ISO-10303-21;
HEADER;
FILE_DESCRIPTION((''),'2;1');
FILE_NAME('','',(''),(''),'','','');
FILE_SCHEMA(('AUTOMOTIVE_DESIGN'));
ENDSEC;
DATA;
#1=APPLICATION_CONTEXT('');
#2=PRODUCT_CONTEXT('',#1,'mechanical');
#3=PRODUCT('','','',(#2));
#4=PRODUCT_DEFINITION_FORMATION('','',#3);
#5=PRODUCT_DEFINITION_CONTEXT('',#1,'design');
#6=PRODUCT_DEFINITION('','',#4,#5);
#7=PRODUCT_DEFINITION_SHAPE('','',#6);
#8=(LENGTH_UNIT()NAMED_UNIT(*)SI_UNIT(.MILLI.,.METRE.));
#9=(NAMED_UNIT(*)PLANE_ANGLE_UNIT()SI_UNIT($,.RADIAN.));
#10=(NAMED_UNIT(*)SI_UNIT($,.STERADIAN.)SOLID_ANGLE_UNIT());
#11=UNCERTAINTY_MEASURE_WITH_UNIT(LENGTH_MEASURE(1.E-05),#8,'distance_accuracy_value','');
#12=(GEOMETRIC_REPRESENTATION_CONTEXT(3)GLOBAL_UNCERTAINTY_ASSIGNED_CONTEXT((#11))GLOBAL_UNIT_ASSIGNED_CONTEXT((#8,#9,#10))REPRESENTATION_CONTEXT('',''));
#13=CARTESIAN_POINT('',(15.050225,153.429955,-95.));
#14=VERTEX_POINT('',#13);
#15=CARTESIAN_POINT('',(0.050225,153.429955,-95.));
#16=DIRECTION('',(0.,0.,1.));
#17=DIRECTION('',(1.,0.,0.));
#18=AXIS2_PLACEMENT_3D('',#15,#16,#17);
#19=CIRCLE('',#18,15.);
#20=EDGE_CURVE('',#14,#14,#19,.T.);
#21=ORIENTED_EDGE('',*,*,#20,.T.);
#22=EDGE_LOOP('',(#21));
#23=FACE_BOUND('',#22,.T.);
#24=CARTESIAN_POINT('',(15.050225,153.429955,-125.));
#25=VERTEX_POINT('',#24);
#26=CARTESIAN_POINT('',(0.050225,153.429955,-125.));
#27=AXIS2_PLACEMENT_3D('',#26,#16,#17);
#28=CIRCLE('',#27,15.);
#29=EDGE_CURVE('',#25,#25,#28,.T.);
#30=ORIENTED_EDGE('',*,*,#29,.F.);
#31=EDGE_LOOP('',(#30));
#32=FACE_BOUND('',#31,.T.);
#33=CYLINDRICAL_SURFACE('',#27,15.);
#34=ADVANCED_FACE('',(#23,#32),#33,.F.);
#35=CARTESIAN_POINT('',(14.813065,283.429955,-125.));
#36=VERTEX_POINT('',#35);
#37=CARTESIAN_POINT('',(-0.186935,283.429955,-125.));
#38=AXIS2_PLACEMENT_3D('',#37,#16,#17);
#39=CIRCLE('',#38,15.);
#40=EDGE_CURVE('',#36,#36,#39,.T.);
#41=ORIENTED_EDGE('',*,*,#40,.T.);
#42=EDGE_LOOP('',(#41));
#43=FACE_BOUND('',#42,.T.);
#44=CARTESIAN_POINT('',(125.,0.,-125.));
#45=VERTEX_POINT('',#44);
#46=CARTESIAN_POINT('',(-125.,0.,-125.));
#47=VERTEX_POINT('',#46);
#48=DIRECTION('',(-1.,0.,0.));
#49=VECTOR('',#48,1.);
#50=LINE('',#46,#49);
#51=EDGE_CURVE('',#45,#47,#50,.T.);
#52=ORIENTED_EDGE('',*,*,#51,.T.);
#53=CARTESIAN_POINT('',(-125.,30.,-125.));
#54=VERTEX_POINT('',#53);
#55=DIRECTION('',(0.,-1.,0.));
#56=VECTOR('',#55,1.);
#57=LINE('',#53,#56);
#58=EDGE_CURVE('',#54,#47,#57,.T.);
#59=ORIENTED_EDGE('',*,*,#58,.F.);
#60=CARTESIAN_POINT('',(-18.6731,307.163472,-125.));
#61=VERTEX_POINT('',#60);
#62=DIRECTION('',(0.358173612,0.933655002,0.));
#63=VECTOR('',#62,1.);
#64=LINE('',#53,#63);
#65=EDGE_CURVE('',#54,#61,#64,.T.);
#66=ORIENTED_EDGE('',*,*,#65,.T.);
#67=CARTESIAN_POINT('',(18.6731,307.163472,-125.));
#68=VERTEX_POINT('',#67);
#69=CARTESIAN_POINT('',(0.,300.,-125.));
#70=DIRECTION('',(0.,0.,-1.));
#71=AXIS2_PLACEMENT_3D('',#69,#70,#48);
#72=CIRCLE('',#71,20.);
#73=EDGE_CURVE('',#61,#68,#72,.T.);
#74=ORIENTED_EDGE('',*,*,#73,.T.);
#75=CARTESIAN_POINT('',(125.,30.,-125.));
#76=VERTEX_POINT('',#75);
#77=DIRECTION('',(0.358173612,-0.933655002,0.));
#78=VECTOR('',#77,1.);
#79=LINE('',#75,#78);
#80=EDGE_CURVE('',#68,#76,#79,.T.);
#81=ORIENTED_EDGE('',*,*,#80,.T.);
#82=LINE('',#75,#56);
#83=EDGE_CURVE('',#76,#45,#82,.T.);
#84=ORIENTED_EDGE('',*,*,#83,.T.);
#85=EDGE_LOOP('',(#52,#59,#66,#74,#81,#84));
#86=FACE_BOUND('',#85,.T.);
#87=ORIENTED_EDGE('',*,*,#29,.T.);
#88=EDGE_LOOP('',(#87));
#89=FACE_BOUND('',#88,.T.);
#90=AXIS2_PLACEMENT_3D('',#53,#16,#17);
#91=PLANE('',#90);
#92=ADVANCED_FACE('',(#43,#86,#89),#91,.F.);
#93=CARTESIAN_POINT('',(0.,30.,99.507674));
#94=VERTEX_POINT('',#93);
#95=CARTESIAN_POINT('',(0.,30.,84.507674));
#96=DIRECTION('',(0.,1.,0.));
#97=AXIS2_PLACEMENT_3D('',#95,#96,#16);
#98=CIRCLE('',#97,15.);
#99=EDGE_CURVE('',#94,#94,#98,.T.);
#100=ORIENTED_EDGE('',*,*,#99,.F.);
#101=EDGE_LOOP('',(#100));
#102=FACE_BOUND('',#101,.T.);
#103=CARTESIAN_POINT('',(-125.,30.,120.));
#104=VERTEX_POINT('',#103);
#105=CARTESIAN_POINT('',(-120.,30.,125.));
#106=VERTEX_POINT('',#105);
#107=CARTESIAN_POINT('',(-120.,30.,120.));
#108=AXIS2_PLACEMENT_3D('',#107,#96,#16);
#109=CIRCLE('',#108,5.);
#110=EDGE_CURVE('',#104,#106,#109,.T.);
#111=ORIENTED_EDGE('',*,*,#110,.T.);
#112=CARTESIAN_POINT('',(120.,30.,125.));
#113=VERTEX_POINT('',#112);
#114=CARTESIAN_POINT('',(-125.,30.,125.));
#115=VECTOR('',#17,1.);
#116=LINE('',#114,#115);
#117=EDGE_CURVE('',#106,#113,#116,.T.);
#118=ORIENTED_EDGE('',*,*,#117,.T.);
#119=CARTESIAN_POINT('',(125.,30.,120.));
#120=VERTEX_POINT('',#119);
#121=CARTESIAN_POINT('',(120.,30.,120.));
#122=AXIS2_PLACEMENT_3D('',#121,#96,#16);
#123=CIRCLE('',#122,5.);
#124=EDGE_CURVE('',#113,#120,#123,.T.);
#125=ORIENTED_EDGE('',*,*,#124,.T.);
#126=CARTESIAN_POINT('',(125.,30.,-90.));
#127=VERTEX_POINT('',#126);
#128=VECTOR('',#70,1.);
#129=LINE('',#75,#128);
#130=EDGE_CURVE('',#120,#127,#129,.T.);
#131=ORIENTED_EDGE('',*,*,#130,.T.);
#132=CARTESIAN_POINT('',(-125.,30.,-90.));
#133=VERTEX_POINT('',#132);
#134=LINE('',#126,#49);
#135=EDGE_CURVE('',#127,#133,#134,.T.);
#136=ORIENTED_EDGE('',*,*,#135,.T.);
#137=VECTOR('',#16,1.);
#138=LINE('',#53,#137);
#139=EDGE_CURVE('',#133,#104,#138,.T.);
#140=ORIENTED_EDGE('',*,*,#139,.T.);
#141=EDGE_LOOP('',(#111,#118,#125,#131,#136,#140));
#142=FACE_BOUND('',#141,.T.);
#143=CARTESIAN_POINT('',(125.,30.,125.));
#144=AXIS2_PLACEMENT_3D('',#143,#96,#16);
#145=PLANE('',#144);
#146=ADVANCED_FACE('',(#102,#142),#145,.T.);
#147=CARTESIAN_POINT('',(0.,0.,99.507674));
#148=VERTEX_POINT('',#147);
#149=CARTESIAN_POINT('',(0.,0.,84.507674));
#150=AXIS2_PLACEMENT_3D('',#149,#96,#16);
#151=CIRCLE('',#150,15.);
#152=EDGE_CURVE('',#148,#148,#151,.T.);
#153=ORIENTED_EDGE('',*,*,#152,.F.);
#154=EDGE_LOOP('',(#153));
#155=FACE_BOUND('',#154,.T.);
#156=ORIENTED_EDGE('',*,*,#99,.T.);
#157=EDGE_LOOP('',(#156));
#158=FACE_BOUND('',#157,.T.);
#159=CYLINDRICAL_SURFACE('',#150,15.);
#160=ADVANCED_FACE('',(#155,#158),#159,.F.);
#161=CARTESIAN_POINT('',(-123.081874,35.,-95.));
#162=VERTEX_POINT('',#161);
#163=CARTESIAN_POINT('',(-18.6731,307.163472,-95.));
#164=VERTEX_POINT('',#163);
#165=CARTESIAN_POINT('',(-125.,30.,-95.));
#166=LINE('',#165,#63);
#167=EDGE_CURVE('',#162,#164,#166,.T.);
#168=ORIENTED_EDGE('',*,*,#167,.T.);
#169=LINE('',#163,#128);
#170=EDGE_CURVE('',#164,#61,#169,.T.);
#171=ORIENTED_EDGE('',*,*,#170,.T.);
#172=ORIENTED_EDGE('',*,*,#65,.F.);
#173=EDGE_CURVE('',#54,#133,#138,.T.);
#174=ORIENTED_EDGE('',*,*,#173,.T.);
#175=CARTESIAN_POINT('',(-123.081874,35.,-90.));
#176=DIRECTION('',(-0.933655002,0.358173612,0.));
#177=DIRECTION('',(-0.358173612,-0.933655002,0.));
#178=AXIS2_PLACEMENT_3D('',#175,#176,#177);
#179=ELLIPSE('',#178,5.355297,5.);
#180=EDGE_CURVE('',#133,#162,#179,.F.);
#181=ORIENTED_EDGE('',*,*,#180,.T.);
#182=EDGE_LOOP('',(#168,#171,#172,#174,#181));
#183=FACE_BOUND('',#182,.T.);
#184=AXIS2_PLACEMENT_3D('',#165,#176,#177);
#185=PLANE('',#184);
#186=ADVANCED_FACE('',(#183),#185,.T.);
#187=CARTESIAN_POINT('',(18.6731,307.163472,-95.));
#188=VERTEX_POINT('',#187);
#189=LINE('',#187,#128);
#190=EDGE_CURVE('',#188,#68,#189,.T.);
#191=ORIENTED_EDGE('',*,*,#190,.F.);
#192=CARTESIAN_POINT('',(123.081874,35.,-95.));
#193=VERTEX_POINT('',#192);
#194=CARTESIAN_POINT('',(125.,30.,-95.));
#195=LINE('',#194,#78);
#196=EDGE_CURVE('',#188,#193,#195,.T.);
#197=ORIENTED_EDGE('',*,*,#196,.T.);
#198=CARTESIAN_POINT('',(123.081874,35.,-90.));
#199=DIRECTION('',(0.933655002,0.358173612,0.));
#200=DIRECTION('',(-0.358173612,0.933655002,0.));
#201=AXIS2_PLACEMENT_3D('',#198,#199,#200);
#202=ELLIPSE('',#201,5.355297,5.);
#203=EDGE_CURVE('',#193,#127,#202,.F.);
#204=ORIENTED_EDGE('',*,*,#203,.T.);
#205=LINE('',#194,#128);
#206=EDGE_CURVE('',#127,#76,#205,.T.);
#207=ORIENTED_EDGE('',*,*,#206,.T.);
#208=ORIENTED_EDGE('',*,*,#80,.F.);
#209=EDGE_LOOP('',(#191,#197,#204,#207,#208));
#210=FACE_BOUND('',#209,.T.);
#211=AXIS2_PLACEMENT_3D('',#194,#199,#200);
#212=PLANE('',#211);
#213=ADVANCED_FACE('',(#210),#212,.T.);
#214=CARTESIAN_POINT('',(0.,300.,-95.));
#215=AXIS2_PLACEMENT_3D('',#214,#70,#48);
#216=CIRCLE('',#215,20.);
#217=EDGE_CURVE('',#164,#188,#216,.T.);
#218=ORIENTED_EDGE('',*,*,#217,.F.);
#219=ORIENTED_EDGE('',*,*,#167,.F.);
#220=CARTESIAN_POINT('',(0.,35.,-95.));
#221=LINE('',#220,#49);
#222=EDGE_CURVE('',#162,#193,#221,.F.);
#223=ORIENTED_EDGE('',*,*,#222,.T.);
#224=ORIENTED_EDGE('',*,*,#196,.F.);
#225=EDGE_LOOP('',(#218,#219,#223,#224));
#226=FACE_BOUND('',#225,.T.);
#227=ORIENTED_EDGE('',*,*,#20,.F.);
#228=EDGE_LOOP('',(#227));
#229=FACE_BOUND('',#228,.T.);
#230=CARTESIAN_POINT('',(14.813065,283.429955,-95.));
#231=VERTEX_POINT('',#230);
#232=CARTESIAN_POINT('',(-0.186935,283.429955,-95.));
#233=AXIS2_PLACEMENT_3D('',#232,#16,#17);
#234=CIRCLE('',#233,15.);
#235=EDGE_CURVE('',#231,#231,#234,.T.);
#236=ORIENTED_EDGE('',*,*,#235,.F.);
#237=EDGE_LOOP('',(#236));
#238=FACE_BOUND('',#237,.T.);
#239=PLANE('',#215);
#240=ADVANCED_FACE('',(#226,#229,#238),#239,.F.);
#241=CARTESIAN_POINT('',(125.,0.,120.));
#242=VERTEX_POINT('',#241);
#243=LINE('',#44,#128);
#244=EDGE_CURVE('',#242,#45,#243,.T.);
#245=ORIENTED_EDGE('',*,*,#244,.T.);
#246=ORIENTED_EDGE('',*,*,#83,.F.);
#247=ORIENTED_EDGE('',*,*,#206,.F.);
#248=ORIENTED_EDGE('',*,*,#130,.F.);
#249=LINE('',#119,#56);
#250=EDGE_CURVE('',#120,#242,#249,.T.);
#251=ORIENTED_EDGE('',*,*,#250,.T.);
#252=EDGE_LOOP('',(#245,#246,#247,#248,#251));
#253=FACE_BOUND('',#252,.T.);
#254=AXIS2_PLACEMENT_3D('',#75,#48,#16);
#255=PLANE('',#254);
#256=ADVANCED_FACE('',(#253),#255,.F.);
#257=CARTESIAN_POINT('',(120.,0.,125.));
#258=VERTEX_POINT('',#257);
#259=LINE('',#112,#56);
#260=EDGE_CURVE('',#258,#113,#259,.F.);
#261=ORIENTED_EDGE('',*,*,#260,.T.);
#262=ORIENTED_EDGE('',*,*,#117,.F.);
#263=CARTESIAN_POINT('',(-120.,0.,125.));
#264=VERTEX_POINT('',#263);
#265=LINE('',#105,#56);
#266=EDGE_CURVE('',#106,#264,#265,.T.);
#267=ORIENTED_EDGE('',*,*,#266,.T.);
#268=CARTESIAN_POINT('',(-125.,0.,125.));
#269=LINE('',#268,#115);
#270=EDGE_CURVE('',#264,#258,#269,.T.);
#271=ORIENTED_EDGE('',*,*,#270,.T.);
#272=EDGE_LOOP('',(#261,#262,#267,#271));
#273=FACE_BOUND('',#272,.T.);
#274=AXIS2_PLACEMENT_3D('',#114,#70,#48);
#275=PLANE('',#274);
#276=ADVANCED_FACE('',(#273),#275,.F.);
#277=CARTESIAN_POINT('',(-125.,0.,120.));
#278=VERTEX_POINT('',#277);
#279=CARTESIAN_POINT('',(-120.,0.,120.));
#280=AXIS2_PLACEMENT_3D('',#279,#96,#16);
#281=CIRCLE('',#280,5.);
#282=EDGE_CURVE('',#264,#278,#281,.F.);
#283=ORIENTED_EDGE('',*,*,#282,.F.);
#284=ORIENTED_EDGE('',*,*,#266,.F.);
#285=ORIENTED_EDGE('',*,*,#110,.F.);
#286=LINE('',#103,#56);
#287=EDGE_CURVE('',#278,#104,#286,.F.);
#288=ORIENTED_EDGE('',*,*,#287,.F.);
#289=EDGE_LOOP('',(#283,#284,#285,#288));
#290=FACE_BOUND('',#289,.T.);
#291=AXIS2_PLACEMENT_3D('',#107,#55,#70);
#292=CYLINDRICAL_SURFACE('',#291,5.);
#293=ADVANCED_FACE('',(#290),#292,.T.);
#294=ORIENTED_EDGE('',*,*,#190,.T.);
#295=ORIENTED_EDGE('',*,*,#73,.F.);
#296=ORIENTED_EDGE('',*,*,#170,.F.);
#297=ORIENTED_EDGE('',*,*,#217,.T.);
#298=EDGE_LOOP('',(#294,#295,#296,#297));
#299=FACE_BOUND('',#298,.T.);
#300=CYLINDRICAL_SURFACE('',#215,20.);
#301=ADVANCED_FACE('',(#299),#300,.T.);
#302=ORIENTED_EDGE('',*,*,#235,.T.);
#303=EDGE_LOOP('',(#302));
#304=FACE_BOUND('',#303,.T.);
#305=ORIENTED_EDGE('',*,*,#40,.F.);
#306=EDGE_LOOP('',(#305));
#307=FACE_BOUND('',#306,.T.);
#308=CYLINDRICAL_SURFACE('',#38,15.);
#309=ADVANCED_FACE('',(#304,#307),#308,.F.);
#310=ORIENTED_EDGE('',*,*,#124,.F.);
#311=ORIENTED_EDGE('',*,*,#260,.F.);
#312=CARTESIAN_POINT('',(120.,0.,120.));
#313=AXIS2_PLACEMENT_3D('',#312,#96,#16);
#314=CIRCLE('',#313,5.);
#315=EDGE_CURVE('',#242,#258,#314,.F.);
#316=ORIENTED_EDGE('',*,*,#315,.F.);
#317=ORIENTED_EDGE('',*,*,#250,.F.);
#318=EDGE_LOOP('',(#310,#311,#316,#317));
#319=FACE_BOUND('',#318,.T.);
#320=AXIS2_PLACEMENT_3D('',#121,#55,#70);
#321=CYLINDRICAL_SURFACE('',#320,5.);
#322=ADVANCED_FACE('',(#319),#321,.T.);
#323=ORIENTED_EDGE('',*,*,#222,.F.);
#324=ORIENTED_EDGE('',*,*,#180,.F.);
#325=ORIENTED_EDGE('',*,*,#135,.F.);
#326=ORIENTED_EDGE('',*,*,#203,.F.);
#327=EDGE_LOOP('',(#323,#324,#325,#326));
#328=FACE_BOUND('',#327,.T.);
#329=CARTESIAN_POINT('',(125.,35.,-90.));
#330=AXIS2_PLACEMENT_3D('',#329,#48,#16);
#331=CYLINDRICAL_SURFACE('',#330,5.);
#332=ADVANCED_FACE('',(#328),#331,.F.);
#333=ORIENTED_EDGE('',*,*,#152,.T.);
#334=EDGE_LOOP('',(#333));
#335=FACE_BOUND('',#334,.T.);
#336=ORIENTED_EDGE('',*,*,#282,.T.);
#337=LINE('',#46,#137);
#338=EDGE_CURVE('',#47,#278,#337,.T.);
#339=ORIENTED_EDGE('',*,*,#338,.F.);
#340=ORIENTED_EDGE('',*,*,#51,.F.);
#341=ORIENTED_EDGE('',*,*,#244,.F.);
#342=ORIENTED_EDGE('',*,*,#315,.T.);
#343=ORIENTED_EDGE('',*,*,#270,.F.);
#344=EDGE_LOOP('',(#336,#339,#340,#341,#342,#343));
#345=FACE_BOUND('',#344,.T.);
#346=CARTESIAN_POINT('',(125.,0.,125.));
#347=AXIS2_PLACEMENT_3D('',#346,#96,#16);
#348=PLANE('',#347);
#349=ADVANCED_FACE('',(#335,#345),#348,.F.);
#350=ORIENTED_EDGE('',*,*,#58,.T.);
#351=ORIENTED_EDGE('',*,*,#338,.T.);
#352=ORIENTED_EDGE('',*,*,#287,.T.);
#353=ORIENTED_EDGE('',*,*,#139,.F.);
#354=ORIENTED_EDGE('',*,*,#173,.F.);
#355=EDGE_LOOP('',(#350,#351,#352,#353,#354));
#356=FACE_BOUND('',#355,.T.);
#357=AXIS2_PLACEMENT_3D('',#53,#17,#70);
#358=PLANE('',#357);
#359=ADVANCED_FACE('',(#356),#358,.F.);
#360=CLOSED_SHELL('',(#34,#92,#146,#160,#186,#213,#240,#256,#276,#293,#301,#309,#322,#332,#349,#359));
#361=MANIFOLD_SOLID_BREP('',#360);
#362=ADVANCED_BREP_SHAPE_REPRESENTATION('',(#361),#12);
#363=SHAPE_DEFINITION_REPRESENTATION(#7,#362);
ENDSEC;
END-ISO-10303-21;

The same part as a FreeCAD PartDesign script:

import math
import FreeCAD as App
import Part
import Sketcher

V = App.Vector


def edges_at(feature, points):
    """Names of the edges that pass closest to the given points."""
    edges = feature.Shape.Edges
    near = lambda p: min(range(len(edges)), key=lambda i: edges[i].distToShape(Part.Vertex(*p))[0])
    return sorted({f"Edge{near(p) + 1}" for p in points})


def add_polygon(sketch, points):
    """Adds a closed chain of lines whose ends are joined by coincident constraints."""
    first, n = sketch.GeometryCount, len(points)
    for a, b in zip(points, points[1:] + points[:1]):
        sketch.addGeometry(Part.LineSegment(App.Vector(*a, 0), App.Vector(*b, 0)), False)
    for i in range(n):
        sketch.addConstraint(Sketcher.Constraint("Coincident", first + i, 2, first + (i + 1) % n, 1))

doc = App.newDocument("Part")
params = doc.addObject("Spreadsheet::Sheet", "Params")
for row, (alias, value) in enumerate([
    ("sketch1_width", "250 mm"),
    ("pad1_length", "30 mm"),
    ("sketch2_radius", "20 mm"),
    ("sketch2_width", "250 mm"),
    ("pad2_length", "30 mm"),
    ("fillet_radius", "5 mm"),
    ("fillet2_radius", "5 mm"),
    ("sketch3_diameter", "30 mm"),
    ("pocket1_length", "30 mm"),
    ("pad3_length", "30 mm"),
    ("sketch5_diameter", "30 mm"),
    ("pocket2_length", "30 mm"),
], start=1):
    params.set(f"A{row}", alias)
    params.set(f"B{row}", "=" + value)
    params.setAlias(f"B{row}", alias)

body = doc.addObject("PartDesign::Body", "Body")

# Sketch on XZ plane
sketch1 = doc.addObject("Sketcher::SketchObject", "Sketch")
body.addObject(sketch1)
sketch1.AttachmentSupport = (doc.XZ_Plane, [""])
sketch1.MapMode = "FlatFace"
add_polygon(sketch1, [(-125, -125), (-125, 125), (125, 125), (125, -125)])  # lines 0-3
sketch1.addConstraint([
    Sketcher.Constraint("Vertical", 0),
    Sketcher.Constraint("Horizontal", 1),
    Sketcher.Constraint("Vertical", 2),
    Sketcher.Constraint("Horizontal", 3),
    Sketcher.Constraint("Symmetric", 0, 2, 2, 2, -1, 1),
    Sketcher.Constraint("Equal", 3, 0),
    Sketcher.Constraint("DistanceX", 1, 1, 1, 2, 250.0),
])
sketch1.setExpression("Constraints[10]", "Params.sketch1_width")
pad1 = doc.addObject("PartDesign::Pad", "Pad")
body.addObject(pad1)
pad1.Profile = sketch1
pad1.setExpression("Length", "Params.pad1_length")
pad1.Reversed = True

# Sketch on XY plane
sketch2 = doc.addObject("Sketcher::SketchObject", "Sketch001")
body.addObject(sketch2)
sketch2.AttachmentSupport = (doc.XY_Plane, [""])
sketch2.MapMode = "FlatFace"
sketch2.AttachmentOffset = App.Placement(V(0, 0, -125), App.Rotation())
sketch2.addGeometry([
    Part.LineSegment(V(19, 307, 0), V(125, 30, 0)),
    Part.LineSegment(V(125, 30, 0), V(-125, 30, 0)),
    Part.LineSegment(V(-125, 30, 0), V(-19, 307, 0)),
    Part.ArcOfCircle(Part.Circle(V(0, 300, 0), V(0, 0, 1), 20), math.radians(21), math.radians(159)),
], False)
sketch2.addConstraint([
    Sketcher.Constraint("Coincident", 0, 2, 1, 1),
    Sketcher.Constraint("Coincident", 1, 2, 2, 1),
    Sketcher.Constraint("Tangent", 2, 2, 3, 2),
    Sketcher.Constraint("Tangent", 3, 1, 0, 1),
    Sketcher.Constraint("Horizontal", 1),
    Sketcher.Constraint("Symmetric", 2, 2, 3, 1, -2),
    Sketcher.Constraint("Radius", 3, 20.0),
    Sketcher.Constraint("DistanceX", 1, 2, 1, 1, 250.0),
    Sketcher.Constraint("DistanceY", -1, 1, 3, 3, 300.0),
    Sketcher.Constraint("DistanceY", -1, 1, 0, 2, 30.0),
])
sketch2.setExpression("Constraints[6]", "Params.sketch2_radius")
sketch2.setExpression("Constraints[7]", "Params.sketch2_width")
pad2 = doc.addObject("PartDesign::Pad", "Pad001")
body.addObject(pad2)
pad2.Profile = sketch2
pad2.setExpression("Length", "Params.pad2_length")
doc.recompute()

fillet = doc.addObject("PartDesign::Fillet", "Fillet")
body.addObject(fillet)
fillet.Base = (pad2, edges_at(pad2, [(0, 30, -95)]))
fillet.setExpression("Radius", "Params.fillet_radius")
doc.recompute()

fillet2 = doc.addObject("PartDesign::Fillet", "Fillet001")
body.addObject(fillet2)
fillet2.Base = (fillet, edges_at(fillet, [(-125, 15, 125), (125, 15, 125)]))
fillet2.setExpression("Radius", "Params.fillet2_radius")

# Sketch on XY plane
sketch3 = doc.addObject("Sketcher::SketchObject", "Sketch002")
body.addObject(sketch3)
sketch3.AttachmentSupport = (doc.XY_Plane, [""])
sketch3.MapMode = "FlatFace"
sketch3.AttachmentOffset = App.Placement(V(0, 0, -95), App.Rotation())
sketch3.addGeometry([
    Part.Circle(V(0, 153, 0), V(0, 0, 1), 15),
    Part.Circle(V(0, 283, 0), V(0, 0, 1), 15),
], False)
sketch3.addConstraint([
    Sketcher.Constraint("Equal", 0, 1),
    Sketcher.Constraint("Diameter", 0, 30.0),
    Sketcher.Constraint("DistanceY", 0, 3, 1, 3, 130.0),
    Sketcher.Constraint("DistanceX", 1, 3, 0, 3, 0.23716),
    Sketcher.Constraint("DistanceX", -1, 1, 0, 3, 0.050225),
    Sketcher.Constraint("DistanceY", -1, 1, 0, 3, 153.429955),
])
sketch3.setExpression("Constraints[1]", "Params.sketch3_diameter")
pocket1 = doc.addObject("PartDesign::Pocket", "Pocket")
body.addObject(pocket1)
pocket1.Profile = sketch3
pocket1.setExpression("Length", "Params.pocket1_length")

# Sketch on XY plane
sketch4 = doc.addObject("Sketcher::SketchObject", "Sketch003")
body.addObject(sketch4)
sketch4.AttachmentSupport = (doc.XY_Plane, [""])
sketch4.MapMode = "FlatFace"
sketch4.AttachmentOffset = App.Placement(V(0, 0, -95), App.Rotation())
sketch4.addGeometry(Part.Circle(V(0, 213, 0), V(0, 0, 1), 5), False)
sketch4.addConstraint([
    Sketcher.Constraint("Diameter", 0, 10.832884),
    Sketcher.Constraint("DistanceX", 0, 3, -1, 1, 0.101144),
    Sketcher.Constraint("DistanceY", -1, 1, 0, 3, 213.312144),
])
pad3 = doc.addObject("PartDesign::Pad", "Pad002")
body.addObject(pad3)
pad3.Profile = sketch4
pad3.setExpression("Length", "Params.pad3_length")
pad3.Reversed = True

# Sketch on XZ plane
sketch5 = doc.addObject("Sketcher::SketchObject", "Sketch004")
body.addObject(sketch5)
sketch5.AttachmentSupport = (doc.XZ_Plane, [""])
sketch5.MapMode = "FlatFace"
sketch5.AttachmentOffset = App.Placement(V(0, 0, -30), App.Rotation())
sketch5.addGeometry(Part.Circle(V(0, 85, 0), V(0, 0, 1), 15), False)
sketch5.addConstraint([
    Sketcher.Constraint("PointOnObject", 0, 3, -2),
    Sketcher.Constraint("Diameter", 0, 30.0),
    Sketcher.Constraint("DistanceY", -1, 1, 0, 3, 84.507674),
])
sketch5.setExpression("Constraints[1]", "Params.sketch5_diameter")
pocket2 = doc.addObject("PartDesign::Pocket", "Pocket001")
body.addObject(pocket2)
pocket2.Profile = sketch5
pocket2.setExpression("Length", "Params.pocket2_length")
pocket2.Reversed = True

doc.recompute()
